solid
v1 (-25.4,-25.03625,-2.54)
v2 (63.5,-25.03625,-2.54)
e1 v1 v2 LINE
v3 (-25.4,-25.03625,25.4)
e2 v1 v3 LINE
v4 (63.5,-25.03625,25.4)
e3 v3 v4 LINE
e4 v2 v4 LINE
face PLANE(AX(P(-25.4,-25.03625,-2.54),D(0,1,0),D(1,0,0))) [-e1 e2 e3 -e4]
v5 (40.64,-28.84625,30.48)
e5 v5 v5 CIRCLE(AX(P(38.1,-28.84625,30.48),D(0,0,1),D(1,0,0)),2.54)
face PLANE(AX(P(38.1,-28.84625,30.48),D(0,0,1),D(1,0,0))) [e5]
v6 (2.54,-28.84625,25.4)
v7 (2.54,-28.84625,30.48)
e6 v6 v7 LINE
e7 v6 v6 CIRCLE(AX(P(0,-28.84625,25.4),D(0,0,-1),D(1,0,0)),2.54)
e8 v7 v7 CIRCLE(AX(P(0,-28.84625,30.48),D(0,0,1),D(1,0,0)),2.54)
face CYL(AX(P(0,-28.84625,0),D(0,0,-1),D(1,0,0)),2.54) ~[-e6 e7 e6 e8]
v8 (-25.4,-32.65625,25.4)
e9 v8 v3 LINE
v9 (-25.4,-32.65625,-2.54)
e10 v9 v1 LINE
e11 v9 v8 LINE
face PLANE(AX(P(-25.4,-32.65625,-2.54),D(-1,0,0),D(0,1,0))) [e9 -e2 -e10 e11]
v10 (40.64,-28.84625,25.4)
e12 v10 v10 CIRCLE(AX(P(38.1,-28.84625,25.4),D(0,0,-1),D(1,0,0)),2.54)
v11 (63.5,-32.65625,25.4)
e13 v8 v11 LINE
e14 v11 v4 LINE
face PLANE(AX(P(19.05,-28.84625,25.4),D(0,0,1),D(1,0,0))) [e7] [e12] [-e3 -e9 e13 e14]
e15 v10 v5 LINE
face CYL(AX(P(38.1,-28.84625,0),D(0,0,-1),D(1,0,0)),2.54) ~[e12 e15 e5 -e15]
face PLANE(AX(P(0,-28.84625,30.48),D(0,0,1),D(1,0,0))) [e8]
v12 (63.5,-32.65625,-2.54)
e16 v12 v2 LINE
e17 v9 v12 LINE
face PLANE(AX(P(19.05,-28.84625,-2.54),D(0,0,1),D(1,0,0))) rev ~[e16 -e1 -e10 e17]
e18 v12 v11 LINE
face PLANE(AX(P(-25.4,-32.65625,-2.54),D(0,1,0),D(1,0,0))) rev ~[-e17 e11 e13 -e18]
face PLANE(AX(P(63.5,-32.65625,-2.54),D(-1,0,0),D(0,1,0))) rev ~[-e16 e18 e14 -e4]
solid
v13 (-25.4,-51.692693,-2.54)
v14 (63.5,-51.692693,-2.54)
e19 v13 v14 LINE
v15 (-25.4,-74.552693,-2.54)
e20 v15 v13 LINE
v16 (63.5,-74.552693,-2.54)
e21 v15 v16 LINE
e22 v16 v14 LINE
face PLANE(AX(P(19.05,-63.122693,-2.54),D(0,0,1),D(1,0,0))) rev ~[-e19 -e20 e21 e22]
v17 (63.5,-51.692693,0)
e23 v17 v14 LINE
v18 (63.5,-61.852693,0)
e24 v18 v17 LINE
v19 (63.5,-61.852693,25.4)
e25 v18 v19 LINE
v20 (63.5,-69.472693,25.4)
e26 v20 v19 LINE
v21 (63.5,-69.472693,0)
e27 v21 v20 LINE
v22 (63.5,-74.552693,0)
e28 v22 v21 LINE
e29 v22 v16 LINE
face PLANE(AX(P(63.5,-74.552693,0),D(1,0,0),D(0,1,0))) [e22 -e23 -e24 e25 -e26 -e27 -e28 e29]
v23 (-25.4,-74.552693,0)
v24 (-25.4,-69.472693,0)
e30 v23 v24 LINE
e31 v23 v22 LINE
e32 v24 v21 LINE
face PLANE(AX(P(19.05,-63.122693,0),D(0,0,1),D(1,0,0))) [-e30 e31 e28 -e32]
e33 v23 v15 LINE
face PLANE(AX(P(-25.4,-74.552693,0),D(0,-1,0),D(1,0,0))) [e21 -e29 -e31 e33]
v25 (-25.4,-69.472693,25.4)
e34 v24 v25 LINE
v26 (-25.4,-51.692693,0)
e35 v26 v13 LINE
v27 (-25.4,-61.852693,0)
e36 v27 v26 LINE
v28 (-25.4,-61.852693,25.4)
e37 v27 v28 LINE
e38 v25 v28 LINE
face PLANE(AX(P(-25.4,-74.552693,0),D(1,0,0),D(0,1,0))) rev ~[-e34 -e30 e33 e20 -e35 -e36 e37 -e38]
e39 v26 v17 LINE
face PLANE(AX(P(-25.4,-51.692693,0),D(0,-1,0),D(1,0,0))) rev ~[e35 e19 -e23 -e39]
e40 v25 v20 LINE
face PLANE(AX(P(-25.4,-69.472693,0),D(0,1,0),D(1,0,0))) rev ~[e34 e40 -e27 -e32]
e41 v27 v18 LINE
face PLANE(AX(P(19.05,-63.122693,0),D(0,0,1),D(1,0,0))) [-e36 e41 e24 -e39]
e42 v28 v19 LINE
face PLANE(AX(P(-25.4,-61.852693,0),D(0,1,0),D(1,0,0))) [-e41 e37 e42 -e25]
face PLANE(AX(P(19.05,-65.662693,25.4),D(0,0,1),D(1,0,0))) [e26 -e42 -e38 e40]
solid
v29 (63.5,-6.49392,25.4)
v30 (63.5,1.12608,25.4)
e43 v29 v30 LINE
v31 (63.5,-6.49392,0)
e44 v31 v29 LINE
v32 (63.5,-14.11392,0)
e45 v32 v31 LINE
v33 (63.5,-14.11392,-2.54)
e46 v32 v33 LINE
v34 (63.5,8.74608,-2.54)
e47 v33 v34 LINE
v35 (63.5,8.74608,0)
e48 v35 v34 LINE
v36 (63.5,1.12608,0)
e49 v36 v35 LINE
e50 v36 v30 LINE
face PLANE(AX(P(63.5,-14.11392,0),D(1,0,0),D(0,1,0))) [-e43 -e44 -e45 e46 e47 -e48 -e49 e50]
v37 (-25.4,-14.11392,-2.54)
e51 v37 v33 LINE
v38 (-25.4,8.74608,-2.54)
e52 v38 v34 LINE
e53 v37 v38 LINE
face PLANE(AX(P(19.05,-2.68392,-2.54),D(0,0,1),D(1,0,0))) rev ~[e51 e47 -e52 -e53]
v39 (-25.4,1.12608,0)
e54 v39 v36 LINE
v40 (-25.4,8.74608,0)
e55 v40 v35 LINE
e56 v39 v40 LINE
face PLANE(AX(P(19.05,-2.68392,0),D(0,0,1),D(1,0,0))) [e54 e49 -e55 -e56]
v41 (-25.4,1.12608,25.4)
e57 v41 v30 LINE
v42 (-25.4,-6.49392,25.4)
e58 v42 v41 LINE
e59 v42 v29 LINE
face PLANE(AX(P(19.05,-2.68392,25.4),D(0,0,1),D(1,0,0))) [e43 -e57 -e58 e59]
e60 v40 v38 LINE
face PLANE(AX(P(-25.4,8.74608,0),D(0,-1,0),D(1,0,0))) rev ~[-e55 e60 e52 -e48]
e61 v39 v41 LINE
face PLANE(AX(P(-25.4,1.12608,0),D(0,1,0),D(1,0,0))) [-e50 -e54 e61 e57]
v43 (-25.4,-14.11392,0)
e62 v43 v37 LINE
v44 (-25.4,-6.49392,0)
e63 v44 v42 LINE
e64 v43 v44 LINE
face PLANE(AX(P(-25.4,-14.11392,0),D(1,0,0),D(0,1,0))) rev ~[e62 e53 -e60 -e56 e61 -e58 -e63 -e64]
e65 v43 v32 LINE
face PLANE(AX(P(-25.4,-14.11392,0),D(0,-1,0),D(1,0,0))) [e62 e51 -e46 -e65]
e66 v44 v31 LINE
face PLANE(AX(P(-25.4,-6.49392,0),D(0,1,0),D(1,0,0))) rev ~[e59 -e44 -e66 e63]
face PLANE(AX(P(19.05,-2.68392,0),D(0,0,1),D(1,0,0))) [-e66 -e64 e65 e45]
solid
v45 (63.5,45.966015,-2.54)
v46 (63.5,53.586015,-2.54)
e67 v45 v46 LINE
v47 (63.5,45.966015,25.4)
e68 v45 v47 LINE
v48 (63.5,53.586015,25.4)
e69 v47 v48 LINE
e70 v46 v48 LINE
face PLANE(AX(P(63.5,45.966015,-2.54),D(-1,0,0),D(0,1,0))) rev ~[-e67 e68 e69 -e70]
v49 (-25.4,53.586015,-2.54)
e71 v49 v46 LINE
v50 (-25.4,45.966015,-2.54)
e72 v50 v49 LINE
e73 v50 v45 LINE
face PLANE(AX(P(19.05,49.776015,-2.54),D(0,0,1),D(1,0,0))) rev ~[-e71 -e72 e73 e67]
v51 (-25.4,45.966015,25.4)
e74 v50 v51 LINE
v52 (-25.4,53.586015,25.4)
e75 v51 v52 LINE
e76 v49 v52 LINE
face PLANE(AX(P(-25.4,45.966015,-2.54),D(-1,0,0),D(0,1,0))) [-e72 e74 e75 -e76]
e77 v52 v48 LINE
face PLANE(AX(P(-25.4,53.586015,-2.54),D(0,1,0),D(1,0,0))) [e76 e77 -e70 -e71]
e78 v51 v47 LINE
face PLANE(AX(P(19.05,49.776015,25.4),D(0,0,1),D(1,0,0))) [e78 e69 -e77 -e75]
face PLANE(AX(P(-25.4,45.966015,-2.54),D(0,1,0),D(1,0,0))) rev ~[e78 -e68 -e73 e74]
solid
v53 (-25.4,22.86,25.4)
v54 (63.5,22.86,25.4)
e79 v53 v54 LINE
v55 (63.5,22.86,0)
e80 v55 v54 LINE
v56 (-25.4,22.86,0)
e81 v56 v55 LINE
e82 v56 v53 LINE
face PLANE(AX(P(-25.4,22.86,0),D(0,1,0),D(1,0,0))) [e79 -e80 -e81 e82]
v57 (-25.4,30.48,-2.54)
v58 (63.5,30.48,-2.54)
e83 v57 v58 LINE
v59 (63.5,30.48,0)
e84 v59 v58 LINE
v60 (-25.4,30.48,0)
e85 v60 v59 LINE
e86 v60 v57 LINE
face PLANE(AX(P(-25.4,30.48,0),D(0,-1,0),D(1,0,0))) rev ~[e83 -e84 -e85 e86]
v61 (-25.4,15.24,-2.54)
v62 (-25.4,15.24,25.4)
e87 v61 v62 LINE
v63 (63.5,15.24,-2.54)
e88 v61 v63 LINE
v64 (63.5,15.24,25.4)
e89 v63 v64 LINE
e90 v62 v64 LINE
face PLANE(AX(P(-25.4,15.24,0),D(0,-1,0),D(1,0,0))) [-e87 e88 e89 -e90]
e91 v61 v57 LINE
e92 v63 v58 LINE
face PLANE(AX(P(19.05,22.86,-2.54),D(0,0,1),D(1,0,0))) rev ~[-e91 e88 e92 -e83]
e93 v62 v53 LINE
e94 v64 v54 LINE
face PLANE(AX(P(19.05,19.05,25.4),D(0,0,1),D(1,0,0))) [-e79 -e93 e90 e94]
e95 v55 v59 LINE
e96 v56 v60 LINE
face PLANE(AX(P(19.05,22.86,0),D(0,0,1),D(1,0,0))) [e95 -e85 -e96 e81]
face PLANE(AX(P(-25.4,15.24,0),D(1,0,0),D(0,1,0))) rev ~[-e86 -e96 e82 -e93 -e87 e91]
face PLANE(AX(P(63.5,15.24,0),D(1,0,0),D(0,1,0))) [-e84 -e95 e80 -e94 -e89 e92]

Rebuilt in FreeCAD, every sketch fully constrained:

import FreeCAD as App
import Part
import Sketcher
Q = App.Units.Quantity


def add_polygon(sketch, points):
    """Adds a closed chain of lines whose ends are joined by coincident constraints."""
    first, n = sketch.GeometryCount, len(points)
    for a, b in zip(points, points[1:] + points[:1]):
        sketch.addGeometry(Part.LineSegment(App.Vector(*a, 0), App.Vector(*b, 0)), False)
    for i in range(n):
        sketch.addConstraint(Sketcher.Constraint("Coincident", first + i, 2, first + (i + 1) % n, 1))

doc = App.newDocument("Part")
body = doc.addObject("PartDesign::Body", "Body")
body.AllowCompound = True

sketch1 = body.newObject("Sketcher::SketchObject", "Sketch")
sketch1.AttachmentSupport = (doc.getObject("XY_Plane"), [""])
sketch1.MapMode = "FlatFace"
add_polygon(sketch1, [(-25, 23), (-25, 15), (64, 15), (64, 23)])
add_polygon(sketch1, [(-25, 1), (-25, -6), (64, -6), (64, 1)])
add_polygon(sketch1, [(-25, -62), (-25, -69), (64, -69), (64, -62)])
sketch1.addConstraint([
    Sketcher.Constraint("Vertical", 0),
    Sketcher.Constraint("Horizontal", 1),
    Sketcher.Constraint("Vertical", 2),
    Sketcher.Constraint("Horizontal", 3),
    Sketcher.Constraint("Vertical", 4),
    Sketcher.Constraint("Horizontal", 5),
    Sketcher.Constraint("Vertical", 6),
    Sketcher.Constraint("Horizontal", 7),
    Sketcher.Constraint("Vertical", 8),
    Sketcher.Constraint("Horizontal", 9),
    Sketcher.Constraint("Vertical", 10),
    Sketcher.Constraint("Horizontal", 11),
    Sketcher.Constraint("Vertical", 3, 2, 4, 2),
    Sketcher.Constraint("Vertical", 2, 2, 5, 2),
    Sketcher.Constraint("Vertical", 7, 2, 8, 2),
    Sketcher.Constraint("Vertical", 6, 2, 9, 2),
    Sketcher.Constraint("Equal", 2, 4),
    Sketcher.Constraint("Equal", 6, 8),
    Sketcher.Constraint("DistanceX", 1, 1, 1, 2, Q("3.5 in")),
    Sketcher.Constraint("DistanceY", 0, 2, 0, 1, Q("0.3 in")),
    Sketcher.Constraint("DistanceX", 0, 2, -1, 1, Q("1 in")),
    Sketcher.Constraint("DistanceY", -1, 1, 0, 2, Q("0.6 in")),
    Sketcher.Constraint("DistanceY", 4, 2, -1, 1, 6.49392),
    Sketcher.Constraint("DistanceY", 8, 2, -1, 1, 69.472693),
])
pad1 = body.newObject("PartDesign::Pad", "Pad")
pad1.Profile = sketch1
pad1.Length = Q("1 in")

sketch2 = body.newObject("Sketcher::SketchObject", "Sketch001")
sketch2.AttachmentSupport = (doc.getObject("XY_Plane"), [""])
sketch2.MapMode = "FlatFace"
add_polygon(sketch2, [(-25, 30), (-25, 15), (64, 15), (64, 30)])
add_polygon(sketch2, [(-25, 9), (-25, -14), (64, -14), (64, 9)])
add_polygon(sketch2, [(-25, -52), (-25, -75), (64, -75), (64, -52)])
sketch2.addConstraint([
    Sketcher.Constraint("Vertical", 0),
    Sketcher.Constraint("Horizontal", 1),
    Sketcher.Constraint("Vertical", 2),
    Sketcher.Constraint("Horizontal", 3),
    Sketcher.Constraint("Vertical", 4),
    Sketcher.Constraint("Horizontal", 5),
    Sketcher.Constraint("Vertical", 6),
    Sketcher.Constraint("Horizontal", 7),
    Sketcher.Constraint("Vertical", 8),
    Sketcher.Constraint("Horizontal", 9),
    Sketcher.Constraint("Vertical", 10),
    Sketcher.Constraint("Horizontal", 11),
    Sketcher.Constraint("Vertical", 3, 2, 4, 2),
    Sketcher.Constraint("Vertical", 2, 2, 5, 2),
    Sketcher.Constraint("Vertical", 7, 2, 8, 2),
    Sketcher.Constraint("Vertical", 6, 2, 9, 2),
    Sketcher.Constraint("Equal", 6, 8),
    Sketcher.Constraint("DistanceX", 1, 1, 1, 2, Q("3.5 in")),
    Sketcher.Constraint("DistanceY", 0, 2, 0, 1, Q("0.6 in")),
    Sketcher.Constraint("DistanceY", 4, 2, 4, 1, Q("0.9 in")),
    Sketcher.Constraint("DistanceX", 0, 2, -1, 1, Q("1 in")),
    Sketcher.Constraint("DistanceY", -1, 1, 0, 2, Q("0.6 in")),
    Sketcher.Constraint("DistanceY", 4, 2, -1, 1, 14.11392),
    Sketcher.Constraint("DistanceY", 8, 2, -1, 1, 74.552693),
])
pad2 = body.newObject("PartDesign::Pad", "Pad001")
pad2.Profile = sketch2
pad2.Length = Q("0.1 in")
pad2.Reversed = True
body2 = doc.addObject("PartDesign::Body", "Body001")
body2.AllowCompound = True

sketch3 = body2.newObject("Sketcher::SketchObject", "Sketch002")
sketch3.AttachmentSupport = (doc.getObject("XY_Plane001"), [""])
sketch3.MapMode = "FlatFace"
sketch3.AttachmentOffset = App.Placement(App.Vector(0, 0, -0.1 * 25.4), App.Rotation())
add_polygon(sketch3, [(-25, -25), (-25, -33), (64, -33), (64, -25)])
add_polygon(sketch3, [(-25, 54), (-25, 46), (64, 46), (64, 54)])
sketch3.addConstraint([
    Sketcher.Constraint("Vertical", 0),
    Sketcher.Constraint("Horizontal", 1),
    Sketcher.Constraint("Vertical", 2),
    Sketcher.Constraint("Horizontal", 3),
    Sketcher.Constraint("Vertical", 4),
    Sketcher.Constraint("Horizontal", 5),
    Sketcher.Constraint("Vertical", 6),
    Sketcher.Constraint("Horizontal", 7),
    Sketcher.Constraint("Vertical", 3, 2, 4, 2),
    Sketcher.Constraint("Vertical", 2, 2, 5, 2),
    Sketcher.Constraint("Equal", 2, 4),
    Sketcher.Constraint("DistanceX", 1, 1, 1, 2, Q("3.5 in")),
    Sketcher.Constraint("DistanceY", 0, 2, 0, 1, Q("0.3 in")),
    Sketcher.Constraint("DistanceX", 0, 2, -1, 1, Q("1 in")),
    Sketcher.Constraint("DistanceY", 0, 2, -1, 1, 32.65625),
    Sketcher.Constraint("DistanceY", -1, 1, 4, 2, 45.966015),
])
pad3 = body2.newObject("PartDesign::Pad", "Pad002")
pad3.Profile = sketch3
pad3.Length = Q("1.1 in")

sketch4 = body2.newObject("Sketcher::SketchObject", "Sketch003")
sketch4.AttachmentSupport = (doc.getObject("XY_Plane001"), [""])
sketch4.MapMode = "FlatFace"
sketch4.addGeometry([
    Part.Circle(App.Vector(38.1, -28.8, 0), App.Vector(0, 0, 1), 2.5),
    Part.Circle(App.Vector(0, -28.8, 0), App.Vector(0, 0, 1), 2.5),
], False)
sketch4.addConstraint([
    Sketcher.Constraint("Equal", 0, 1),
    Sketcher.Constraint("PointOnObject", 1, 3, -2),
    Sketcher.Constraint("Horizontal", 0, 3, 1, 3),
    Sketcher.Constraint("Diameter", 0, Q("0.2 in")),
    Sketcher.Constraint("DistanceX", -1, 1, 0, 3, Q("1.5 in")),
    Sketcher.Constraint("DistanceY", 0, 3, -1, 1, 28.84625),
])
pad4 = body2.newObject("PartDesign::Pad", "Pad003")
pad4.Profile = sketch4
pad4.Length = Q("1.2 in")

doc.recompute()
